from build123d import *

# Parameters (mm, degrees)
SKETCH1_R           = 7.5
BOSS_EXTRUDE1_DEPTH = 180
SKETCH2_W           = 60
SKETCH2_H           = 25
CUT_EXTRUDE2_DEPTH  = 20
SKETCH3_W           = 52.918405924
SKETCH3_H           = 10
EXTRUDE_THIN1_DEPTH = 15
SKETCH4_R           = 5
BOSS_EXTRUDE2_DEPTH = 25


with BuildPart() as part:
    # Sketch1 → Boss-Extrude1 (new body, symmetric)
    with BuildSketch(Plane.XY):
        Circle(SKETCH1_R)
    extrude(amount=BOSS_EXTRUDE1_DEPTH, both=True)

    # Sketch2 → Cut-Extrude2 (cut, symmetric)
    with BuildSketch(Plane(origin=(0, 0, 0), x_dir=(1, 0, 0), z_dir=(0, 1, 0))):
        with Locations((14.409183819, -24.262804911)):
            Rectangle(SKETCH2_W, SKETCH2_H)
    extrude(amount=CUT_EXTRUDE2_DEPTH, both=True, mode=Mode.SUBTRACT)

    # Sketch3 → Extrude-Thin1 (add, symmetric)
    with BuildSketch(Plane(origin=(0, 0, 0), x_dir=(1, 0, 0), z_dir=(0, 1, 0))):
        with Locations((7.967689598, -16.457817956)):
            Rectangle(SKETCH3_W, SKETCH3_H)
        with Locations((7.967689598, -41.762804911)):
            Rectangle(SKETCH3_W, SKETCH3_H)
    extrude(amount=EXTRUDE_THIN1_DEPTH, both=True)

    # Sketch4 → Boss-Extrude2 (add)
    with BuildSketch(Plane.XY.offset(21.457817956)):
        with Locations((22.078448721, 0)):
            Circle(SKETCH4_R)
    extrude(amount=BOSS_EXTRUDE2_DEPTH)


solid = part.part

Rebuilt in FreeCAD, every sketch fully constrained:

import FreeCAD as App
import Part
import Sketcher

V = App.Vector
Q = App.Units.Quantity


def add_polygon(sketch, points):
    """Adds a closed chain of lines whose ends are joined by coincident constraints."""
    first, n = sketch.GeometryCount, len(points)
    for a, b in zip(points, points[1:] + points[:1]):
        sketch.addGeometry(Part.LineSegment(App.Vector(*a, 0), App.Vector(*b, 0)), False)
    for i in range(n):
        sketch.addConstraint(Sketcher.Constraint("Coincident", first + i, 2, first + (i + 1) % n, 1))

doc = App.newDocument("Part")
body = doc.addObject("PartDesign::Body", "Body")
body.AllowCompound = True

sketch1 = body.newObject("Sketcher::SketchObject", "Sketch")
sketch1.AttachmentSupport = (doc.getObject("XY_Plane"), [""])
sketch1.MapMode = "FlatFace"
sketch1.addGeometry(Part.Circle(V(0, 0, 0), V(0, 0, 1), 8), False)
sketch1.addConstraint([
    Sketcher.Constraint("Coincident", 0, 3, -1, 1),
    Sketcher.Constraint("Diameter", 0, Q("15 mm")),
])
pad1 = body.newObject("PartDesign::Pad", "Pad")
pad1.Profile = sketch1
pad1.Length = 360
pad1.Midplane = True

sketch2 = body.newObject("Sketcher::SketchObject", "Sketch001")
sketch2.AttachmentSupport = (doc.getObject("XZ_Plane"), [""])
sketch2.MapMode = "FlatFace"
add_polygon(sketch2, [(-16, 12), (-16, 37), (44, 37), (44, 12)])
sketch2.addConstraint([
    Sketcher.Constraint("Vertical", 0),
    Sketcher.Constraint("Horizontal", 1),
    Sketcher.Constraint("Vertical", 2),
    Sketcher.Constraint("Horizontal", 3),
    Sketcher.Constraint("DistanceX", 1, 1, 1, 2, Q("60 mm")),
    Sketcher.Constraint("DistanceY", 0, 1, 0, 2, Q("25 mm")),
    Sketcher.Constraint("DistanceX", 0, 2, -1, 1, Q("15.590816 mm")),
    Sketcher.Constraint("DistanceY", -1, 1, 0, 2, Q("36.762805 mm")),
])
pocket1 = body.newObject("PartDesign::Pocket", "Pocket")
pocket1.Profile = sketch2
pocket1.Length = 40
pocket1.Midplane = True

sketch3 = body.newObject("Sketcher::SketchObject", "Sketch002")
sketch3.AttachmentSupport = (doc.getObject("XZ_Plane"), [""])
sketch3.MapMode = "FlatFace"
add_polygon(sketch3, [(-18, 11), (-18, 21), (34, 21), (34, 11)])
add_polygon(sketch3, [(-18, 37), (-18, 47), (34, 47), (34, 37)])
sketch3.addConstraint([
    Sketcher.Constraint("Vertical", 0),
    Sketcher.Constraint("Horizontal", 1),
    Sketcher.Constraint("Vertical", 2),
    Sketcher.Constraint("Horizontal", 3),
    Sketcher.Constraint("Vertical", 4),
    Sketcher.Constraint("Horizontal", 5),
    Sketcher.Constraint("Vertical", 6),
    Sketcher.Constraint("Horizontal", 7),
    Sketcher.Constraint("Vertical", 3, 2, 4, 2),
    Sketcher.Constraint("Vertical", 2, 2, 5, 2),
    Sketcher.Constraint("Equal", 2, 4),
    Sketcher.Constraint("DistanceY", 0, 1, 0, 2, Q("10 mm")),
    Sketcher.Constraint("DistanceX", 1, 1, 1, 2, Q("52.918406 mm")),
    Sketcher.Constraint("DistanceX", 0, 2, -1, 1, Q("18.491513 mm")),
    Sketcher.Constraint("DistanceY", -1, 1, 0, 2, Q("21.457818 mm")),
    Sketcher.Constraint("DistanceY", -1, 1, 4, 2, Q("46.762805 mm")),
])
pad2 = body.newObject("PartDesign::Pad", "Pad001")
pad2.Profile = sketch3
pad2.Length = 30
pad2.Midplane = True

sketch4 = body.newObject("Sketcher::SketchObject", "Sketch003")
sketch4.AttachmentSupport = (doc.getObject("XY_Plane"), [""])
sketch4.MapMode = "FlatFace"
sketch4.AttachmentOffset = App.Placement(V(0, 0, 21.457818), App.Rotation())
sketch4.addGeometry(Part.Circle(V(22, 0, 0), V(0, 0, 1), 5), False)
sketch4.addConstraint([
    Sketcher.Constraint("PointOnObject", 0, 3, -1),
    Sketcher.Constraint("Diameter", 0, Q("10 mm")),
    Sketcher.Constraint("DistanceX", -1, 1, 0, 3, Q("22.078449 mm")),
])
pad3 = body.newObject("PartDesign::Pad", "Pad002")
pad3.Profile = sketch4
pad3.Length = 25

doc.recompute()
